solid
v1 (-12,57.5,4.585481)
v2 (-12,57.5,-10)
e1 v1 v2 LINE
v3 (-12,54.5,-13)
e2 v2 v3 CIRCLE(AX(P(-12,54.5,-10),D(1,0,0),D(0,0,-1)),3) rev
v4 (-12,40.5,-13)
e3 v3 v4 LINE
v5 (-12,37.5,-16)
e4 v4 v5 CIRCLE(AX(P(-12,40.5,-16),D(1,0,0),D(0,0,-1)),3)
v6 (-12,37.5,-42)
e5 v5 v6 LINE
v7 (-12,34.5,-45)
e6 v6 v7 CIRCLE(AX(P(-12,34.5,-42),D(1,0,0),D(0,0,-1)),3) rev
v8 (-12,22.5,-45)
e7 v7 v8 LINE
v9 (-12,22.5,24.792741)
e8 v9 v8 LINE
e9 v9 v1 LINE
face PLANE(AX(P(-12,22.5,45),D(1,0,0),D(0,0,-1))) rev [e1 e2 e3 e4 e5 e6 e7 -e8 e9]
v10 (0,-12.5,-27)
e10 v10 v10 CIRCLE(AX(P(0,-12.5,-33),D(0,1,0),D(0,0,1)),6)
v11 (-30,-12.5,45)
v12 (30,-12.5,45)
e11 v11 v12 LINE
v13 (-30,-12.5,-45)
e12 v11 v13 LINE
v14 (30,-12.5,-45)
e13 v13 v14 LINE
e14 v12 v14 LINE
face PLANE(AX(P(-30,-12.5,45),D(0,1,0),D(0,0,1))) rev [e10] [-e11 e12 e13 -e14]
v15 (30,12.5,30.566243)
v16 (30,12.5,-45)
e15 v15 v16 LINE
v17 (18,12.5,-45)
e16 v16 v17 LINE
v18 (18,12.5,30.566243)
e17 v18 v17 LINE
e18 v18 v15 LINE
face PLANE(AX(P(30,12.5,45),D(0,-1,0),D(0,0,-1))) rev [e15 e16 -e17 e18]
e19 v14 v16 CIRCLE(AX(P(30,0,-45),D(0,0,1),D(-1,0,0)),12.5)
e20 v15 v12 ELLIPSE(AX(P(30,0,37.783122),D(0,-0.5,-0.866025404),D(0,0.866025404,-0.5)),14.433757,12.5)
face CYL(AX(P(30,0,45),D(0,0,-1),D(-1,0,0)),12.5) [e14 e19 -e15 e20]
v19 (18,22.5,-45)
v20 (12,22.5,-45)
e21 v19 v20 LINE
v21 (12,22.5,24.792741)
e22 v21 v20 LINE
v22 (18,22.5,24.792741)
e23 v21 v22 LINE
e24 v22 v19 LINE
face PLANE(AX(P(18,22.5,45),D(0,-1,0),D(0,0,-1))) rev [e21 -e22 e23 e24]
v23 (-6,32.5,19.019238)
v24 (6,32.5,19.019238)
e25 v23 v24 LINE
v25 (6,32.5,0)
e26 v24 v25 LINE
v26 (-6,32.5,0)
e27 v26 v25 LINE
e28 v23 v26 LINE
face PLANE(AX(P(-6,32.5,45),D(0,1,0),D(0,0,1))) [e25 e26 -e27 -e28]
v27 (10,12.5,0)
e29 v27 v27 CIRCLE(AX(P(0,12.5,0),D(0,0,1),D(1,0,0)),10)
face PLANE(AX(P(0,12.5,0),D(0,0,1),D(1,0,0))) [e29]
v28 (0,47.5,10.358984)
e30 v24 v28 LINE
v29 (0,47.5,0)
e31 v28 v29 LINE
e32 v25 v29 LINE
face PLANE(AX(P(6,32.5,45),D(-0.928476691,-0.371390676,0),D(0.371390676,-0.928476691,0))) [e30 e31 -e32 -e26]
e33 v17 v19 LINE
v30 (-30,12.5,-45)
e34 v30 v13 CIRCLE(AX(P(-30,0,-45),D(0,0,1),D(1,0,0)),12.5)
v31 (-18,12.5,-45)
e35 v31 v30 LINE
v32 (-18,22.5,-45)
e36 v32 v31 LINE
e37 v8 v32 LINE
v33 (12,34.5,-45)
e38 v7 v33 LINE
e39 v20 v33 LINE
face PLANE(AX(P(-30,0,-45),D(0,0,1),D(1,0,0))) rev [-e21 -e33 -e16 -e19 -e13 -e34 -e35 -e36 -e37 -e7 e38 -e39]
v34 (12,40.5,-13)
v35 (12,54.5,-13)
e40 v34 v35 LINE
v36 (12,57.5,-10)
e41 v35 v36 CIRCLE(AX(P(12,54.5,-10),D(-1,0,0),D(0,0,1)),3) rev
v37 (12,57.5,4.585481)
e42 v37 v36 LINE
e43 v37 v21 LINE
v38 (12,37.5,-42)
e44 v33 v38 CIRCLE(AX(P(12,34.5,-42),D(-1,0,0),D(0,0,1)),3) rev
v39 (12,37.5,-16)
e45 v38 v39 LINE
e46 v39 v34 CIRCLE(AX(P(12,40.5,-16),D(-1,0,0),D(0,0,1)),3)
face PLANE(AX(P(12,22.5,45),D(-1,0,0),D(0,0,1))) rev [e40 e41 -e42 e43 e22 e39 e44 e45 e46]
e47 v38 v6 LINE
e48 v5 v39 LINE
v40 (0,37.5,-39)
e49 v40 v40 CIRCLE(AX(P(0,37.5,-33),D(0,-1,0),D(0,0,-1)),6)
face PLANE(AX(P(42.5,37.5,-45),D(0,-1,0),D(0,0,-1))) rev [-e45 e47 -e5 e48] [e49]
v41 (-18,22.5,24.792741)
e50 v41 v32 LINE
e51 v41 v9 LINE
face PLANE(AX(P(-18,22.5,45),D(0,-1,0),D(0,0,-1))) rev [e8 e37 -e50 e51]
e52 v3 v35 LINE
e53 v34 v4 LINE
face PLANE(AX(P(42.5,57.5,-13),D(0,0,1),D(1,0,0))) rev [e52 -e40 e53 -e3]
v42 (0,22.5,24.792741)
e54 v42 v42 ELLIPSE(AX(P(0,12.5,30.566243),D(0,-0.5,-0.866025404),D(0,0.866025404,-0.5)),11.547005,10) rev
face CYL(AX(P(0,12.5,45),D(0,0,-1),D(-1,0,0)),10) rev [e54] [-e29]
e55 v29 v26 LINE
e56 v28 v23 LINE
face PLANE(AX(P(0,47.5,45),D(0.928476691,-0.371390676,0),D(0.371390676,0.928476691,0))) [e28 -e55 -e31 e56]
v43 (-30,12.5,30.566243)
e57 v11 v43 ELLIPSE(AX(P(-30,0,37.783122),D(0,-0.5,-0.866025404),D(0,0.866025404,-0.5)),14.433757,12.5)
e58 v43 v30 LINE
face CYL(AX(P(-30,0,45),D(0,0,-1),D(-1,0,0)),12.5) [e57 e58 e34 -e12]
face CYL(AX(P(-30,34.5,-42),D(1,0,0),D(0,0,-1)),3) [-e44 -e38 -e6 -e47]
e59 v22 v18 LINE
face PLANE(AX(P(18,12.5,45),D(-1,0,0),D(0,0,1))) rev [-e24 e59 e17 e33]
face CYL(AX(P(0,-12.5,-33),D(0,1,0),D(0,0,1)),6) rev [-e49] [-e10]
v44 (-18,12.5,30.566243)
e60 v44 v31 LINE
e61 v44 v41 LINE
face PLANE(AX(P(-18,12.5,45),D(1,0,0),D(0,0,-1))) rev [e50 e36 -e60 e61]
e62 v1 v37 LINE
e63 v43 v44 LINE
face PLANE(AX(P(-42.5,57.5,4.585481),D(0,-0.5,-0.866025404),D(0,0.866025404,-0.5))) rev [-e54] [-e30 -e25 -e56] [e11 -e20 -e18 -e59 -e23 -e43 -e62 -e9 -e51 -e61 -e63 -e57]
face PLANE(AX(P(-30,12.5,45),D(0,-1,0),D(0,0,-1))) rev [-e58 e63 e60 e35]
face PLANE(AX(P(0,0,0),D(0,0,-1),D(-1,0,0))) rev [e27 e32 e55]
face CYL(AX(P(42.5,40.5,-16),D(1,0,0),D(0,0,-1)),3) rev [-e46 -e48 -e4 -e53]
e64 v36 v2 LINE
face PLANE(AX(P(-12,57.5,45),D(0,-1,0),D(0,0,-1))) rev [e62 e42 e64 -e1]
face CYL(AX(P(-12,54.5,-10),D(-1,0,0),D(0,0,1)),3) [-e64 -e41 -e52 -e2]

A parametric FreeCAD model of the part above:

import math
import FreeCAD as App
import Part
import Sketcher

V = App.Vector
Q = App.Units.Quantity


def edges_at(feature, points):
    """Names of the edges that pass closest to the given points."""
    edges = feature.Shape.Edges
    near = lambda p: min(range(len(edges)), key=lambda i: edges[i].distToShape(Part.Vertex(*p))[0])
    return sorted({f"Edge{near(p) + 1}" for p in points})


def add_polygon(sketch, points):
    """Adds a closed chain of lines whose ends are joined by coincident constraints."""
    first, n = sketch.GeometryCount, len(points)
    for a, b in zip(points, points[1:] + points[:1]):
        sketch.addGeometry(Part.LineSegment(App.Vector(*a, 0), App.Vector(*b, 0)), False)
    for i in range(n):
        sketch.addConstraint(Sketcher.Constraint("Coincident", first + i, 2, first + (i + 1) % n, 1))

doc = App.newDocument("Part")
body = doc.addObject("PartDesign::Body", "Body")

sketch1 = doc.addObject("Sketcher::SketchObject", "Sketch")
body.addObject(sketch1)
sketch1.AttachmentSupport = (doc.XY_Plane, [""])
sketch1.MapMode = "FlatFace"
sketch1.addGeometry([
    Part.LineSegment(V(-30, -12, 0), V(30, -12, 0)),
    Part.ArcOfCircle(Part.Circle(V(30, 0, 0), V(0, 0, 1), 12), math.radians(-90), math.radians(90)),
    Part.LineSegment(V(30, 12, 0), V(18, 12, 0)),
    Part.LineSegment(V(18, 12, 0), V(18, 22, 0)),
    Part.LineSegment(V(18, 22, 0), V(12, 22, 0)),
    Part.LineSegment(V(12, 22, 0), V(12, 58, 0)),
    Part.LineSegment(V(12, 58, 0), V(-12, 58, 0)),
    Part.LineSegment(V(-12, 58, 0), V(-12, 22, 0)),
    Part.LineSegment(V(-12, 22, 0), V(-18, 22, 0)),
    Part.LineSegment(V(-18, 22, 0), V(-18, 12, 0)),
    Part.LineSegment(V(-18, 12, 0), V(-30, 12, 0)),
    Part.ArcOfCircle(Part.Circle(V(-30, 0, 0), V(0, 0, 1), 12), math.radians(90), math.radians(270)),
], False)
sketch1.addConstraint([
    Sketcher.Constraint("Tangent", 0, 2, 1, 1),
    Sketcher.Constraint("Tangent", 1, 2, 2, 1),
    Sketcher.Constraint("Coincident", 2, 2, 3, 1),
    Sketcher.Constraint("Coincident", 3, 2, 4, 1),
    Sketcher.Constraint("Coincident", 4, 2, 5, 1),
    Sketcher.Constraint("Coincident", 5, 2, 6, 1),
    Sketcher.Constraint("Coincident", 6, 2, 7, 1),
    Sketcher.Constraint("Coincident", 7, 2, 8, 1),
    Sketcher.Constraint("Coincident", 8, 2, 9, 1),
    Sketcher.Constraint("Coincident", 9, 2, 10, 1),
    Sketcher.Constraint("Tangent", 10, 2, 11, 1),
    Sketcher.Constraint("Tangent", 11, 2, 0, 1),
    Sketcher.Constraint("Horizontal", 0),
    Sketcher.Constraint("Horizontal", 2),
    Sketcher.Constraint("Vertical", 3),
    Sketcher.Constraint("Horizontal", 4),
    Sketcher.Constraint("Vertical", 5),
    Sketcher.Constraint("Horizontal", 6),
    Sketcher.Constraint("Vertical", 7),
    Sketcher.Constraint("Horizontal", 8),
    Sketcher.Constraint("Vertical", 9),
    Sketcher.Constraint("Horizontal", 10),
    Sketcher.Constraint("Equal", 1, 11),
    Sketcher.Constraint("Symmetric", 1, 3, 11, 3, -1, 1),
    Sketcher.Constraint("Symmetric", 4, 2, 7, 2, -2),
    Sketcher.Constraint("Equal", 4, 8),
    Sketcher.Constraint("Radius", 1, Q("12.5 mm")),
    Sketcher.Constraint("DistanceX", 0, 1, 0, 2, Q("60 mm")),
    Sketcher.Constraint("DistanceX", 2, 2, 2, 1, Q("12 mm")),
    Sketcher.Constraint("DistanceX", 4, 2, 4, 1, Q("6 mm")),
    Sketcher.Constraint("DistanceY", 3, 1, 3, 2, Q("10 mm")),
    Sketcher.Constraint("DistanceY", 5, 1, 5, 2, Q("35 mm")),
])
pad1 = doc.addObject("PartDesign::Pad", "Pad")
body.addObject(pad1)
pad1.Profile = sketch1
pad1.Length = 90
pad1.Midplane = True

sketch2 = doc.addObject("Sketcher::SketchObject", "Sketch001")
body.addObject(sketch2)
sketch2.AttachmentSupport = (doc.YZ_Plane, [""])
sketch2.MapMode = "FlatFace"
add_polygon(sketch2, [(-12, 45), (58, 5), (58, 45)])
sketch2.addConstraint([
    Sketcher.Constraint("Vertical", 1),
    Sketcher.Constraint("Horizontal", 2),
    Sketcher.Constraint("DistanceX", 2, 2, 2, 1, Q("70 mm")),
    Sketcher.Constraint("Angle", 0, Q("-30 deg")),
    Sketcher.Constraint("DistanceY", -1, 1, 1, 2, Q("45 mm")),
    Sketcher.Constraint("DistanceX", -1, 1, 0, 2, Q("57.5 mm")),
])
pocket1 = doc.addObject("PartDesign::Pocket", "Pocket")
body.addObject(pocket1)
pocket1.Profile = sketch2
pocket1.Type = "ThroughAll"
pocket1.Midplane = True

sketch3 = doc.addObject("Sketcher::SketchObject", "Sketch002")
body.addObject(sketch3)
sketch3.AttachmentSupport = (doc.XY_Plane, [""])
sketch3.MapMode = "FlatFace"
sketch3.addGeometry(Part.Circle(V(0, 12, 0), V(0, 0, 1), 10), False)
add_polygon(sketch3, [(0, 48), (-6, 32), (6, 32)])
sketch3.addConstraint([
    Sketcher.Constraint("Horizontal", 2),
    Sketcher.Constraint("PointOnObject", 0, 3, -2),
    Sketcher.Constraint("PointOnObject", 3, 2, -2),
    Sketcher.Constraint("Equal", 1, 3),
    Sketcher.Constraint("Diameter", 0, Q("20 mm")),
    Sketcher.Constraint("DistanceX", 2, 1, 2, 2, Q("12 mm")),
    Sketcher.Constraint("DistanceY", 0, 3, 1, 2, Q("20 mm")),
    Sketcher.Constraint("DistanceY", 1, 2, 3, 2, Q("15 mm")),
    Sketcher.Constraint("DistanceY", -1, 1, 0, 3, Q("12.5 mm")),
])
pocket2 = doc.addObject("PartDesign::Pocket", "Pocket001")
body.addObject(pocket2)
pocket2.Profile = sketch3
pocket2.Type = "ThroughAll"
pocket2.Reversed = True

sketch4 = doc.addObject("Sketcher::SketchObject", "Sketch003")
body.addObject(sketch4)
sketch4.AttachmentSupport = (doc.YZ_Plane, [""])
sketch4.MapMode = "FlatFace"
sketch4.AttachmentOffset = App.Placement(V(0, 0, -12), App.Rotation())
add_polygon(sketch4, [(58, -45), (38, -45), (38, -13), (58, -13)])
sketch4.addConstraint([
    Sketcher.Constraint("Horizontal", 0),
    Sketcher.Constraint("Vertical", 1),
    Sketcher.Constraint("Horizontal", 2),
    Sketcher.Constraint("Vertical", 3),
    Sketcher.Constraint("DistanceX", 0, 2, 0, 1, Q("20 mm")),
    Sketcher.Constraint("DistanceY", 1, 1, 1, 2, Q("32 mm")),
    Sketcher.Constraint("DistanceY", 0, 2, -1, 1, Q("45 mm")),
    Sketcher.Constraint("DistanceX", -1, 1, 0, 2, Q("37.5 mm")),
])
pocket3 = doc.addObject("PartDesign::Pocket", "Pocket002")
body.addObject(pocket3)
pocket3.Profile = sketch4
pocket3.Type = "ThroughAll"
pocket3.Midplane = True

sketch5 = doc.addObject("Sketcher::SketchObject", "Sketch004")
body.addObject(sketch5)
sketch5.AttachmentSupport = (doc.XZ_Plane, [""])
sketch5.MapMode = "FlatFace"
sketch5.AttachmentOffset = App.Placement(V(0, 0, -57.5), App.Rotation())
sketch5.addGeometry(Part.Circle(V(0, -33, 0), V(0, 0, 1), 6), False)
sketch5.addConstraint([
    Sketcher.Constraint("PointOnObject", 0, 3, -2),
    Sketcher.Constraint("Diameter", 0, Q("12 mm")),
    Sketcher.Constraint("DistanceY", 0, 3, -1, 1, Q("33 mm")),
])
pocket4 = doc.addObject("PartDesign::Pocket", "Pocket003")
body.addObject(pocket4)
pocket4.Profile = sketch5
pocket4.Type = "ThroughAll"
pocket4.Midplane = True
doc.recompute()

fillet = doc.addObject("PartDesign::Fillet", "Fillet")
body.addObject(fillet)
fillet.Base = (pocket4, edges_at(pocket4, [(0, 37.5, -45), (0, 57.5, -13), (0, 37.5, -13)]))
fillet.Radius = 3

doc.recompute()
